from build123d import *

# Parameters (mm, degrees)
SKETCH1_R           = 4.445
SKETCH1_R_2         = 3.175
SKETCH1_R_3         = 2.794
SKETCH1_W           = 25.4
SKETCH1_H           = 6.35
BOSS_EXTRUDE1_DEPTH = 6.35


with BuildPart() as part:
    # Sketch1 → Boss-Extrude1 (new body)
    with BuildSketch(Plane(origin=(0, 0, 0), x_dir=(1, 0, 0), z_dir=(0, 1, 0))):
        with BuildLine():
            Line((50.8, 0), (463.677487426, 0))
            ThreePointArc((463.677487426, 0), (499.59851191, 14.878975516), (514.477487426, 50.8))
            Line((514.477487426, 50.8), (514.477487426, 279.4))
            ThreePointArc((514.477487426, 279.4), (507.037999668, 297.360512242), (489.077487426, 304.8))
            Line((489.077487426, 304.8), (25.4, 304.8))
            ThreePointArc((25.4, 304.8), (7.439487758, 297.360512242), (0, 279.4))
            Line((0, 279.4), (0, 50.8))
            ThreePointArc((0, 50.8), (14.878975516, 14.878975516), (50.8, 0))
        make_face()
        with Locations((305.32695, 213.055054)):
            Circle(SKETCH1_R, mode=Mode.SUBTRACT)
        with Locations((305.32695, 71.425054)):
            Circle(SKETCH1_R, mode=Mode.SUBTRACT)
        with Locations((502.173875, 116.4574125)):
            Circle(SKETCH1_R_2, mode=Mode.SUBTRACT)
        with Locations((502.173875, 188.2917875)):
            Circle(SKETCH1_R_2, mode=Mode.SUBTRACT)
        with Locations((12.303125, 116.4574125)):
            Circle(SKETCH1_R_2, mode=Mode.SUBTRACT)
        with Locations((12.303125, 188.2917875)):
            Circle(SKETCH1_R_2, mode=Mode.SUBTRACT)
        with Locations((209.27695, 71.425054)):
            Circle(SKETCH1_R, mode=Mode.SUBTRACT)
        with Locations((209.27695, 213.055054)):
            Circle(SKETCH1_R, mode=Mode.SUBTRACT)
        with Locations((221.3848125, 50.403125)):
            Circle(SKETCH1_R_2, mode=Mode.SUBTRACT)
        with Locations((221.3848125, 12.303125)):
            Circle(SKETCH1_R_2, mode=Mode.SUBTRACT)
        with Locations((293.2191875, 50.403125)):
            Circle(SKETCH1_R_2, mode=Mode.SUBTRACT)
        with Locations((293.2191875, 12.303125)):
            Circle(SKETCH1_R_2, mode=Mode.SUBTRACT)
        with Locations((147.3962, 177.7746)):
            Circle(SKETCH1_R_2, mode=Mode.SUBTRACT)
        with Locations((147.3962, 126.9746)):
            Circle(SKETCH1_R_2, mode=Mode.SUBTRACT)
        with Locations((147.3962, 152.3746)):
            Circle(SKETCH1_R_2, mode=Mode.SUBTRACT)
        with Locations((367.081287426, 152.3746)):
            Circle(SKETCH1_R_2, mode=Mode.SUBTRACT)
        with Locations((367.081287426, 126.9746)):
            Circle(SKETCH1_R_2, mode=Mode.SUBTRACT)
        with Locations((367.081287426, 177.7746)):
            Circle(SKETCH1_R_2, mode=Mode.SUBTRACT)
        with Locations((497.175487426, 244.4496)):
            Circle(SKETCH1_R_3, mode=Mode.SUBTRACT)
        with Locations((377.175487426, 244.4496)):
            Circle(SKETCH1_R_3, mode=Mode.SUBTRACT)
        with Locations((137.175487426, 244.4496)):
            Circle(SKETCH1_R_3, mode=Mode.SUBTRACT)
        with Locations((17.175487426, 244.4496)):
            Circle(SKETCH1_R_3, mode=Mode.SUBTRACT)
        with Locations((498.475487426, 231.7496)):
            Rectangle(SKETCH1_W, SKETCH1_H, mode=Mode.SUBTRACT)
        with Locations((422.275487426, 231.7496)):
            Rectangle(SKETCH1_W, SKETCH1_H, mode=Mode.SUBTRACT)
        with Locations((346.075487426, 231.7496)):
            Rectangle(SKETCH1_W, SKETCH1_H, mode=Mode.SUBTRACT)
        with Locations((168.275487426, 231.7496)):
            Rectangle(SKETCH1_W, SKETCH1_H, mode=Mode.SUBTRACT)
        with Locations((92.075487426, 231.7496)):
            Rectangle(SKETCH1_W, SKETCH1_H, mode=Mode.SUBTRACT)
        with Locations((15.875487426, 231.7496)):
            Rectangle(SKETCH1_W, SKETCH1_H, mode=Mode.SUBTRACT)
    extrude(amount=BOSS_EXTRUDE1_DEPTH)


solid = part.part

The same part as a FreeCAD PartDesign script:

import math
import FreeCAD as App
import Part
import Sketcher
Q = App.Units.Quantity

doc = App.newDocument("Part")
body = doc.addObject("PartDesign::Body", "Body")

sketch1 = body.newObject("Sketcher::SketchObject", "Sketch")
sketch1.AttachmentSupport = (doc.getObject("XZ_Plane"), [""])
sketch1.MapMode = "FlatFace"
sketch1.addGeometry(Part.LineSegment(App.Vector(50.8, 0, 0), App.Vector(463.7, 0, 0)), False)
sketch1.addGeometry(Part.ArcOfCircle(Part.Circle(App.Vector(463.7, -50.8, 0), App.Vector(0, 0, 1), 50.8), math.radians(0), math.radians(90)), False)
sketch1.addGeometry(Part.LineSegment(App.Vector(514.5, -50.8, 0), App.Vector(514.5, -279.4, 0)), False)
sketch1.addGeometry(Part.ArcOfCircle(Part.Circle(App.Vector(489.1, -279.4, 0), App.Vector(0, 0, 1), 25.4), math.radians(-90), math.radians(0)), False)
sketch1.addGeometry(Part.LineSegment(App.Vector(489.1, -304.8, 0), App.Vector(25.4, -304.8, 0)), False)
sketch1.addGeometry(Part.ArcOfCircle(Part.Circle(App.Vector(25.4, -279.4, 0), App.Vector(0, 0, 1), 25.4), math.radians(180), math.radians(270)), False)
sketch1.addGeometry(Part.LineSegment(App.Vector(0, -279.4, 0), App.Vector(0, -50.8, 0)), False)
sketch1.addGeometry(Part.ArcOfCircle(Part.Circle(App.Vector(50.8, -50.8, 0), App.Vector(0, 0, 1), 50.8), math.radians(90), math.radians(180)), False)
sketch1.addGeometry(Part.Circle(App.Vector(221.4, -12.3, 0), App.Vector(0, 0, 1), 3.2), False)
sketch1.addGeometry(Part.Circle(App.Vector(221.4, -50.4, 0), App.Vector(0, 0, 1), 3.2), False)
sketch1.addGeometry(Part.Circle(App.Vector(12.3, -116.5, 0), App.Vector(0, 0, 1), 3.2), False)
sketch1.addGeometry(Part.Circle(App.Vector(209.3, -71.4, 0), App.Vector(0, 0, 1), 4.4), False)
sketch1.addGeometry(Part.Circle(App.Vector(147.4, -127, 0), App.Vector(0, 0, 1), 3.2), False)
sketch1.addGeometry(Part.Circle(App.Vector(293.2, -12.3, 0), App.Vector(0, 0, 1), 3.2), False)
sketch1.addGeometry(Part.Circle(App.Vector(293.2, -50.4, 0), App.Vector(0, 0, 1), 3.2), False)
sketch1.addGeometry(Part.Circle(App.Vector(305.3, -71.4, 0), App.Vector(0, 0, 1), 4.4), False)
sketch1.addGeometry(Part.Circle(App.Vector(367.1, -127, 0), App.Vector(0, 0, 1), 3.2), False)
sketch1.addGeometry(Part.Circle(App.Vector(502.2, -116.5, 0), App.Vector(0, 0, 1), 3.2), False)
sketch1.addGeometry(Part.Circle(App.Vector(147.4, -152.4, 0), App.Vector(0, 0, 1), 3.2), False)
sketch1.addGeometry(Part.Circle(App.Vector(147.4, -177.8, 0), App.Vector(0, 0, 1), 3.2), False)
sketch1.addGeometry(Part.Circle(App.Vector(12.3, -188.3, 0), App.Vector(0, 0, 1), 3.2), False)
sketch1.addGeometry(Part.LineSegment(App.Vector(28.6, -228.6, 0), App.Vector(3.2, -228.6, 0)), False)
sketch1.addGeometry(Part.LineSegment(App.Vector(3.2, -228.6, 0), App.Vector(3.2, -234.9, 0)), False)
sketch1.addGeometry(Part.LineSegment(App.Vector(3.2, -234.9, 0), App.Vector(28.6, -234.9, 0)), False)
sketch1.addGeometry(Part.LineSegment(App.Vector(28.6, -234.9, 0), App.Vector(28.6, -228.6, 0)), False)
sketch1.addGeometry(Part.Circle(App.Vector(17.2, -244.4, 0), App.Vector(0, 0, 1), 2.8), False)
sketch1.addGeometry(Part.LineSegment(App.Vector(104.8, -228.6, 0), App.Vector(79.4, -228.6, 0)), False)
sketch1.addGeometry(Part.LineSegment(App.Vector(79.4, -228.6, 0), App.Vector(79.4, -234.9, 0)), False)
sketch1.addGeometry(Part.LineSegment(App.Vector(79.4, -234.9, 0), App.Vector(104.8, -234.9, 0)), False)
sketch1.addGeometry(Part.LineSegment(App.Vector(104.8, -234.9, 0), App.Vector(104.8, -228.6, 0)), False)
sketch1.addGeometry(Part.Circle(App.Vector(209.3, -213.1, 0), App.Vector(0, 0, 1), 4.4), False)
sketch1.addGeometry(Part.LineSegment(App.Vector(181, -228.6, 0), App.Vector(155.6, -228.6, 0)), False)
sketch1.addGeometry(Part.LineSegment(App.Vector(155.6, -228.6, 0), App.Vector(155.6, -234.9, 0)), False)
sketch1.addGeometry(Part.LineSegment(App.Vector(155.6, -234.9, 0), App.Vector(181, -234.9, 0)), False)
sketch1.addGeometry(Part.LineSegment(App.Vector(181, -234.9, 0), App.Vector(181, -228.6, 0)), False)
sketch1.addGeometry(Part.Circle(App.Vector(137.2, -244.4, 0), App.Vector(0, 0, 1), 2.8), False)
sketch1.addGeometry(Part.Circle(App.Vector(367.1, -152.4, 0), App.Vector(0, 0, 1), 3.2), False)
sketch1.addGeometry(Part.Circle(App.Vector(367.1, -177.8, 0), App.Vector(0, 0, 1), 3.2), False)
sketch1.addGeometry(Part.Circle(App.Vector(305.3, -213.1, 0), App.Vector(0, 0, 1), 4.4), False)
sketch1.addGeometry(Part.LineSegment(App.Vector(358.8, -228.6, 0), App.Vector(333.4, -228.6, 0)), False)
sketch1.addGeometry(Part.LineSegment(App.Vector(333.4, -228.6, 0), App.Vector(333.4, -234.9, 0)), False)
sketch1.addGeometry(Part.LineSegment(App.Vector(333.4, -234.9, 0), App.Vector(358.8, -234.9, 0)), False)
sketch1.addGeometry(Part.LineSegment(App.Vector(358.8, -234.9, 0), App.Vector(358.8, -228.6, 0)), False)
sketch1.addGeometry(Part.Circle(App.Vector(377.2, -244.4, 0), App.Vector(0, 0, 1), 2.8), False)
sketch1.addGeometry(Part.Circle(App.Vector(502.2, -188.3, 0), App.Vector(0, 0, 1), 3.2), False)
sketch1.addGeometry(Part.LineSegment(App.Vector(435, -228.6, 0), App.Vector(409.6, -228.6, 0)), False)
sketch1.addGeometry(Part.LineSegment(App.Vector(409.6, -228.6, 0), App.Vector(409.6, -234.9, 0)), False)
sketch1.addGeometry(Part.LineSegment(App.Vector(409.6, -234.9, 0), App.Vector(435, -234.9, 0)), False)
sketch1.addGeometry(Part.LineSegment(App.Vector(435, -234.9, 0), App.Vector(435, -228.6, 0)), False)
sketch1.addGeometry(Part.LineSegment(App.Vector(511.2, -228.6, 0), App.Vector(485.8, -228.6, 0)), False)
sketch1.addGeometry(Part.LineSegment(App.Vector(485.8, -228.6, 0), App.Vector(485.8, -234.9, 0)), False)
sketch1.addGeometry(Part.LineSegment(App.Vector(485.8, -234.9, 0), App.Vector(511.2, -234.9, 0)), False)
sketch1.addGeometry(Part.LineSegment(App.Vector(511.2, -234.9, 0), App.Vector(511.2, -228.6, 0)), False)
sketch1.addGeometry(Part.Circle(App.Vector(497.2, -244.4, 0), App.Vector(0, 0, 1), 2.8), False)
sketch1.addConstraint(Sketcher.Constraint("Tangent", 0, 2, 1, 2))
sketch1.addConstraint(Sketcher.Constraint("Tangent", 1, 1, 2, 1))
sketch1.addConstraint(Sketcher.Constraint("Tangent", 2, 2, 3, 2))
sketch1.addConstraint(Sketcher.Constraint("Tangent", 3, 1, 4, 1))
sketch1.addConstraint(Sketcher.Constraint("Tangent", 4, 2, 5, 2))
sketch1.addConstraint(Sketcher.Constraint("Tangent", 5, 1, 6, 1))
sketch1.addConstraint(Sketcher.Constraint("Tangent", 6, 2, 7, 2))
sketch1.addConstraint(Sketcher.Constraint("Tangent", 7, 1, 0, 1))
sketch1.addConstraint(Sketcher.Constraint("Coincident", 21, 2, 22, 1))
sketch1.addConstraint(Sketcher.Constraint("Coincident", 22, 2, 23, 1))
sketch1.addConstraint(Sketcher.Constraint("Coincident", 23, 2, 24, 1))
sketch1.addConstraint(Sketcher.Constraint("Coincident", 24, 2, 21, 1))
sketch1.addConstraint(Sketcher.Constraint("Coincident", 26, 2, 27, 1))
sketch1.addConstraint(Sketcher.Constraint("Coincident", 27, 2, 28, 1))
sketch1.addConstraint(Sketcher.Constraint("Coincident", 28, 2, 29, 1))
sketch1.addConstraint(Sketcher.Constraint("Coincident", 29, 2, 26, 1))
sketch1.addConstraint(Sketcher.Constraint("Coincident", 31, 2, 32, 1))
sketch1.addConstraint(Sketcher.Constraint("Coincident", 32, 2, 33, 1))
sketch1.addConstraint(Sketcher.Constraint("Coincident", 33, 2, 34, 1))
sketch1.addConstraint(Sketcher.Constraint("Coincident", 34, 2, 31, 1))
sketch1.addConstraint(Sketcher.Constraint("Coincident", 39, 2, 40, 1))
sketch1.addConstraint(Sketcher.Constraint("Coincident", 40, 2, 41, 1))
sketch1.addConstraint(Sketcher.Constraint("Coincident", 41, 2, 42, 1))
sketch1.addConstraint(Sketcher.Constraint("Coincident", 42, 2, 39, 1))
sketch1.addConstraint(Sketcher.Constraint("Coincident", 45, 2, 46, 1))
sketch1.addConstraint(Sketcher.Constraint("Coincident", 46, 2, 47, 1))
sketch1.addConstraint(Sketcher.Constraint("Coincident", 47, 2, 48, 1))
sketch1.addConstraint(Sketcher.Constraint("Coincident", 48, 2, 45, 1))
sketch1.addConstraint(Sketcher.Constraint("Coincident", 49, 2, 50, 1))
sketch1.addConstraint(Sketcher.Constraint("Coincident", 50, 2, 51, 1))
sketch1.addConstraint(Sketcher.Constraint("Coincident", 51, 2, 52, 1))
sketch1.addConstraint(Sketcher.Constraint("Coincident", 52, 2, 49, 1))
sketch1.addConstraint(Sketcher.Constraint("Horizontal", 0))
sketch1.addConstraint(Sketcher.Constraint("Vertical", 2))
sketch1.addConstraint(Sketcher.Constraint("Horizontal", 4))
sketch1.addConstraint(Sketcher.Constraint("Vertical", 6))
sketch1.addConstraint(Sketcher.Constraint("Horizontal", 21))
sketch1.addConstraint(Sketcher.Constraint("Vertical", 22))
sketch1.addConstraint(Sketcher.Constraint("Horizontal", 23))
sketch1.addConstraint(Sketcher.Constraint("Vertical", 24))
sketch1.addConstraint(Sketcher.Constraint("Horizontal", 26))
sketch1.addConstraint(Sketcher.Constraint("Vertical", 27))
sketch1.addConstraint(Sketcher.Constraint("Horizontal", 28))
sketch1.addConstraint(Sketcher.Constraint("Vertical", 29))
sketch1.addConstraint(Sketcher.Constraint("Horizontal", 31))
sketch1.addConstraint(Sketcher.Constraint("Vertical", 32))
sketch1.addConstraint(Sketcher.Constraint("Horizontal", 33))
sketch1.addConstraint(Sketcher.Constraint("Vertical", 34))
sketch1.addConstraint(Sketcher.Constraint("Horizontal", 39))
sketch1.addConstraint(Sketcher.Constraint("Vertical", 40))
sketch1.addConstraint(Sketcher.Constraint("Horizontal", 41))
sketch1.addConstraint(Sketcher.Constraint("Vertical", 42))
sketch1.addConstraint(Sketcher.Constraint("Horizontal", 45))
sketch1.addConstraint(Sketcher.Constraint("Vertical", 46))
sketch1.addConstraint(Sketcher.Constraint("Horizontal", 47))
sketch1.addConstraint(Sketcher.Constraint("Vertical", 48))
sketch1.addConstraint(Sketcher.Constraint("Horizontal", 49))
sketch1.addConstraint(Sketcher.Constraint("Vertical", 50))
sketch1.addConstraint(Sketcher.Constraint("Horizontal", 51))
sketch1.addConstraint(Sketcher.Constraint("Vertical", 52))
sketch1.addConstraint(Sketcher.Constraint("Equal", 3, 5))
sketch1.addConstraint(Sketcher.Constraint("Equal", 1, 7))
sketch1.addConstraint(Sketcher.Constraint("Equal", 8, 9))
sketch1.addConstraint(Sketcher.Constraint("Equal", 9, 10))
sketch1.addConstraint(Sketcher.Constraint("Equal", 10, 12))
sketch1.addConstraint(Sketcher.Constraint("Equal", 12, 13))
sketch1.addConstraint(Sketcher.Constraint("Equal", 13, 14))
sketch1.addConstraint(Sketcher.Constraint("Equal", 11, 15))
sketch1.addConstraint(Sketcher.Constraint("Equal", 14, 16))
sketch1.addConstraint(Sketcher.Constraint("Equal", 16, 17))
sketch1.addConstraint(Sketcher.Constraint("Equal", 17, 18))
sketch1.addConstraint(Sketcher.Constraint("Equal", 18, 19))
sketch1.addConstraint(Sketcher.Constraint("Equal", 19, 20))
sketch1.addConstraint(Sketcher.Constraint("Equal", 15, 30))
sketch1.addConstraint(Sketcher.Constraint("Equal", 25, 35))
sketch1.addConstraint(Sketcher.Constraint("Equal", 20, 36))
sketch1.addConstraint(Sketcher.Constraint("Equal", 36, 37))
sketch1.addConstraint(Sketcher.Constraint("Equal", 30, 38))
sketch1.addConstraint(Sketcher.Constraint("Equal", 35, 43))
sketch1.addConstraint(Sketcher.Constraint("Equal", 37, 44))
sketch1.addConstraint(Sketcher.Constraint("Equal", 43, 53))
sketch1.addConstraint(Sketcher.Constraint("PointOnObject", 0, 2, -1))
sketch1.addConstraint(Sketcher.Constraint("PointOnObject", 5, 1, -2))
sketch1.addConstraint(Sketcher.Constraint("Horizontal", 8, 3, 13, 3))
sketch1.addConstraint(Sketcher.Constraint("Horizontal", 9, 3, 14, 3))
sketch1.addConstraint(Sketcher.Constraint("Horizontal", 11, 3, 15, 3))
sketch1.addConstraint(Sketcher.Constraint("Horizontal", 12, 3, 16, 3))
sketch1.addConstraint(Sketcher.Constraint("Horizontal", 10, 3, 17, 3))
sketch1.addConstraint(Sketcher.Constraint("Horizontal", 25, 3, 35, 3))
sketch1.addConstraint(Sketcher.Constraint("Horizontal", 18, 3, 36, 3))
sketch1.addConstraint(Sketcher.Constraint("Horizontal", 19, 3, 37, 3))
sketch1.addConstraint(Sketcher.Constraint("Horizontal", 30, 3, 38, 3))
sketch1.addConstraint(Sketcher.Constraint("Horizontal", 35, 3, 43, 3))
sketch1.addConstraint(Sketcher.Constraint("Horizontal", 20, 3, 44, 3))
sketch1.addConstraint(Sketcher.Constraint("Horizontal", 43, 3, 53, 3))
sketch1.addConstraint(Sketcher.Constraint("Horizontal", 24, 2, 26, 2))
sketch1.addConstraint(Sketcher.Constraint("Horizontal", 23, 2, 27, 2))
sketch1.addConstraint(Sketcher.Constraint("Horizontal", 29, 2, 31, 2))
sketch1.addConstraint(Sketcher.Constraint("Horizontal", 28, 2, 32, 2))
sketch1.addConstraint(Sketcher.Constraint("Horizontal", 34, 2, 39, 2))
sketch1.addConstraint(Sketcher.Constraint("Horizontal", 33, 2, 40, 2))
sketch1.addConstraint(Sketcher.Constraint("Horizontal", 42, 2, 45, 2))
sketch1.addConstraint(Sketcher.Constraint("Horizontal", 41, 2, 46, 2))
sketch1.addConstraint(Sketcher.Constraint("Horizontal", 48, 2, 49, 2))
sketch1.addConstraint(Sketcher.Constraint("Horizontal", 47, 2, 50, 2))
sketch1.addConstraint(Sketcher.Constraint("Vertical", 8, 3, 9, 3))
sketch1.addConstraint(Sketcher.Constraint("Vertical", 13, 3, 14, 3))
sketch1.addConstraint(Sketcher.Constraint("Vertical", 12, 3, 18, 3))
sketch1.addConstraint(Sketcher.Constraint("Vertical", 18, 3, 19, 3))
sketch1.addConstraint(Sketcher.Constraint("Vertical", 10, 3, 20, 3))
sketch1.addConstraint(Sketcher.Constraint("Vertical", 11, 3, 30, 3))
sketch1.addConstraint(Sketcher.Constraint("Vertical", 16, 3, 36, 3))
sketch1.addConstraint(Sketcher.Constraint("Vertical", 36, 3, 37, 3))
sketch1.addConstraint(Sketcher.Constraint("Vertical", 15, 3, 38, 3))
sketch1.addConstraint(Sketcher.Constraint("Vertical", 17, 3, 44, 3))
sketch1.addConstraint(Sketcher.Constraint("Equal", 23, 26))
sketch1.addConstraint(Sketcher.Constraint("Equal", 28, 31))
sketch1.addConstraint(Sketcher.Constraint("Equal", 33, 39))
sketch1.addConstraint(Sketcher.Constraint("Equal", 41, 45))
sketch1.addConstraint(Sketcher.Constraint("Equal", 47, 49))
sketch1.addConstraint(Sketcher.Constraint("Radius", 1, Q("2 in")))
sketch1.addConstraint(Sketcher.Constraint("Radius", 3, Q("1 in")))
sketch1.addConstraint(Sketcher.Constraint("Diameter", 8, Q("0.25 in")))
sketch1.addConstraint(Sketcher.Constraint("Diameter", 11, Q("0.35 in")))
sketch1.addConstraint(Sketcher.Constraint("Diameter", 25, Q("0.22 in")))
sketch1.addConstraint(Sketcher.Constraint("DistanceX", 21, 2, 21, 1, Q("1 in")))
sketch1.addConstraint(Sketcher.Constraint("DistanceY", 2, 2, 2, 1, Q("9 in")))
sketch1.addConstraint(Sketcher.Constraint("DistanceY", 18, 3, 12, 3, Q("1 in")))
sketch1.addConstraint(Sketcher.Constraint("DistanceY", 19, 3, 18, 3, Q("1 in")))
sketch1.addConstraint(Sketcher.Constraint("DistanceX", 24, 2, 26, 2, Q("2 in")))
sketch1.addConstraint(Sketcher.Constraint("DistanceY", 29, 2, 19, 3, Q("2 in")))
sketch1.addConstraint(Sketcher.Constraint("DistanceX", 29, 2, 31, 2, Q("2 in")))
sketch1.addConstraint(Sketcher.Constraint("DistanceX", 42, 2, 45, 2, Q("2 in")))
sketch1.addConstraint(Sketcher.Constraint("DistanceX", 48, 2, 49, 2, Q("2 in")))
sketch1.addConstraint(Sketcher.Constraint("DistanceY", 22, 2, 22, 1, Q("0.25 in")))
sketch1.addConstraint(Sketcher.Constraint("DistanceY", 9, 3, 8, 3, Q("1.5 in")))
sketch1.addConstraint(Sketcher.Constraint("DistanceX", 47, 2, 3, 3, Q("2.13 in")))
sketch1.addConstraint(Sketcher.Constraint("DistanceY", 8, 3, -1, 1, Q("0.484375 in")))
sketch1.addConstraint(Sketcher.Constraint("DistanceX", -1, 1, 10, 3, Q("0.484375 in")))
sketch1.addConstraint(Sketcher.Constraint("DistanceX", -1, 1, 12, 3, Q("5.803 in")))
sketch1.addConstraint(Sketcher.Constraint("DistanceY", 12, 3, -1, 1, Q("4.999 in")))
sketch1.addConstraint(Sketcher.Constraint("DistanceY", 25, 3, -1, 1, Q("9.624 in")))
sketch1.addConstraint(Sketcher.Constraint("DistanceX", 8, 3, 13, 3, Q("2.828125 in")))
sketch1.addConstraint(Sketcher.Constraint("DistanceX", 16, 3, 1, 3, Q("3.803 in")))
sketch1.addConstraint(Sketcher.Constraint("DistanceY", 20, 3, 10, 3, Q("2.828125 in")))
sketch1.addConstraint(Sketcher.Constraint("DistanceX", 13, 3, 1, 3, Q("170.4583 mm")))
sketch1.addConstraint(Sketcher.Constraint("DistanceX", 11, 3, 15, 3, Q("96.05 mm")))
sketch1.addConstraint(Sketcher.Constraint("DistanceY", 30, 3, 11, 3, Q("141.63 mm")))
sketch1.addConstraint(Sketcher.Constraint("DistanceX", 37, 3, 43, 3, Q("10.0942 mm")))
sketch1.addConstraint(Sketcher.Constraint("DistanceX", 3, 3, 53, 3, Q("8.098 mm")))
sketch1.addConstraint(Sketcher.Constraint("DistanceX", 21, 2, 25, 3, Q("14 mm")))
sketch1.addConstraint(Sketcher.Constraint("DistanceX", 26, 2, 35, 3, Q("57.8 mm")))
sketch1.addConstraint(Sketcher.Constraint("DistanceX", 0, 1, 0, 2, Q("412.877487 mm")))
sketch1.addConstraint(Sketcher.Constraint("DistanceX", -1, 1, 11, 3, Q("209.27695 mm")))
sketch1.addConstraint(Sketcher.Constraint("DistanceY", 11, 3, 9, 3, Q("21.021929 mm")))
sketch1.addConstraint(Sketcher.Constraint("DistanceY", 10, 3, 11, 3, Q("45.032359 mm")))
sketch1.addConstraint(Sketcher.Constraint("DistanceX", -1, 1, 17, 3, Q("502.173875 mm")))
sketch1.addConstraint(Sketcher.Constraint("DistanceX", -1, 1, 25, 3, Q("17.175487 mm")))
pad1 = body.newObject("PartDesign::Pad", "Pad")
pad1.Profile = sketch1
pad1.Length = Q("0.25 in")
pad1.Reversed = True

doc.recompute()
